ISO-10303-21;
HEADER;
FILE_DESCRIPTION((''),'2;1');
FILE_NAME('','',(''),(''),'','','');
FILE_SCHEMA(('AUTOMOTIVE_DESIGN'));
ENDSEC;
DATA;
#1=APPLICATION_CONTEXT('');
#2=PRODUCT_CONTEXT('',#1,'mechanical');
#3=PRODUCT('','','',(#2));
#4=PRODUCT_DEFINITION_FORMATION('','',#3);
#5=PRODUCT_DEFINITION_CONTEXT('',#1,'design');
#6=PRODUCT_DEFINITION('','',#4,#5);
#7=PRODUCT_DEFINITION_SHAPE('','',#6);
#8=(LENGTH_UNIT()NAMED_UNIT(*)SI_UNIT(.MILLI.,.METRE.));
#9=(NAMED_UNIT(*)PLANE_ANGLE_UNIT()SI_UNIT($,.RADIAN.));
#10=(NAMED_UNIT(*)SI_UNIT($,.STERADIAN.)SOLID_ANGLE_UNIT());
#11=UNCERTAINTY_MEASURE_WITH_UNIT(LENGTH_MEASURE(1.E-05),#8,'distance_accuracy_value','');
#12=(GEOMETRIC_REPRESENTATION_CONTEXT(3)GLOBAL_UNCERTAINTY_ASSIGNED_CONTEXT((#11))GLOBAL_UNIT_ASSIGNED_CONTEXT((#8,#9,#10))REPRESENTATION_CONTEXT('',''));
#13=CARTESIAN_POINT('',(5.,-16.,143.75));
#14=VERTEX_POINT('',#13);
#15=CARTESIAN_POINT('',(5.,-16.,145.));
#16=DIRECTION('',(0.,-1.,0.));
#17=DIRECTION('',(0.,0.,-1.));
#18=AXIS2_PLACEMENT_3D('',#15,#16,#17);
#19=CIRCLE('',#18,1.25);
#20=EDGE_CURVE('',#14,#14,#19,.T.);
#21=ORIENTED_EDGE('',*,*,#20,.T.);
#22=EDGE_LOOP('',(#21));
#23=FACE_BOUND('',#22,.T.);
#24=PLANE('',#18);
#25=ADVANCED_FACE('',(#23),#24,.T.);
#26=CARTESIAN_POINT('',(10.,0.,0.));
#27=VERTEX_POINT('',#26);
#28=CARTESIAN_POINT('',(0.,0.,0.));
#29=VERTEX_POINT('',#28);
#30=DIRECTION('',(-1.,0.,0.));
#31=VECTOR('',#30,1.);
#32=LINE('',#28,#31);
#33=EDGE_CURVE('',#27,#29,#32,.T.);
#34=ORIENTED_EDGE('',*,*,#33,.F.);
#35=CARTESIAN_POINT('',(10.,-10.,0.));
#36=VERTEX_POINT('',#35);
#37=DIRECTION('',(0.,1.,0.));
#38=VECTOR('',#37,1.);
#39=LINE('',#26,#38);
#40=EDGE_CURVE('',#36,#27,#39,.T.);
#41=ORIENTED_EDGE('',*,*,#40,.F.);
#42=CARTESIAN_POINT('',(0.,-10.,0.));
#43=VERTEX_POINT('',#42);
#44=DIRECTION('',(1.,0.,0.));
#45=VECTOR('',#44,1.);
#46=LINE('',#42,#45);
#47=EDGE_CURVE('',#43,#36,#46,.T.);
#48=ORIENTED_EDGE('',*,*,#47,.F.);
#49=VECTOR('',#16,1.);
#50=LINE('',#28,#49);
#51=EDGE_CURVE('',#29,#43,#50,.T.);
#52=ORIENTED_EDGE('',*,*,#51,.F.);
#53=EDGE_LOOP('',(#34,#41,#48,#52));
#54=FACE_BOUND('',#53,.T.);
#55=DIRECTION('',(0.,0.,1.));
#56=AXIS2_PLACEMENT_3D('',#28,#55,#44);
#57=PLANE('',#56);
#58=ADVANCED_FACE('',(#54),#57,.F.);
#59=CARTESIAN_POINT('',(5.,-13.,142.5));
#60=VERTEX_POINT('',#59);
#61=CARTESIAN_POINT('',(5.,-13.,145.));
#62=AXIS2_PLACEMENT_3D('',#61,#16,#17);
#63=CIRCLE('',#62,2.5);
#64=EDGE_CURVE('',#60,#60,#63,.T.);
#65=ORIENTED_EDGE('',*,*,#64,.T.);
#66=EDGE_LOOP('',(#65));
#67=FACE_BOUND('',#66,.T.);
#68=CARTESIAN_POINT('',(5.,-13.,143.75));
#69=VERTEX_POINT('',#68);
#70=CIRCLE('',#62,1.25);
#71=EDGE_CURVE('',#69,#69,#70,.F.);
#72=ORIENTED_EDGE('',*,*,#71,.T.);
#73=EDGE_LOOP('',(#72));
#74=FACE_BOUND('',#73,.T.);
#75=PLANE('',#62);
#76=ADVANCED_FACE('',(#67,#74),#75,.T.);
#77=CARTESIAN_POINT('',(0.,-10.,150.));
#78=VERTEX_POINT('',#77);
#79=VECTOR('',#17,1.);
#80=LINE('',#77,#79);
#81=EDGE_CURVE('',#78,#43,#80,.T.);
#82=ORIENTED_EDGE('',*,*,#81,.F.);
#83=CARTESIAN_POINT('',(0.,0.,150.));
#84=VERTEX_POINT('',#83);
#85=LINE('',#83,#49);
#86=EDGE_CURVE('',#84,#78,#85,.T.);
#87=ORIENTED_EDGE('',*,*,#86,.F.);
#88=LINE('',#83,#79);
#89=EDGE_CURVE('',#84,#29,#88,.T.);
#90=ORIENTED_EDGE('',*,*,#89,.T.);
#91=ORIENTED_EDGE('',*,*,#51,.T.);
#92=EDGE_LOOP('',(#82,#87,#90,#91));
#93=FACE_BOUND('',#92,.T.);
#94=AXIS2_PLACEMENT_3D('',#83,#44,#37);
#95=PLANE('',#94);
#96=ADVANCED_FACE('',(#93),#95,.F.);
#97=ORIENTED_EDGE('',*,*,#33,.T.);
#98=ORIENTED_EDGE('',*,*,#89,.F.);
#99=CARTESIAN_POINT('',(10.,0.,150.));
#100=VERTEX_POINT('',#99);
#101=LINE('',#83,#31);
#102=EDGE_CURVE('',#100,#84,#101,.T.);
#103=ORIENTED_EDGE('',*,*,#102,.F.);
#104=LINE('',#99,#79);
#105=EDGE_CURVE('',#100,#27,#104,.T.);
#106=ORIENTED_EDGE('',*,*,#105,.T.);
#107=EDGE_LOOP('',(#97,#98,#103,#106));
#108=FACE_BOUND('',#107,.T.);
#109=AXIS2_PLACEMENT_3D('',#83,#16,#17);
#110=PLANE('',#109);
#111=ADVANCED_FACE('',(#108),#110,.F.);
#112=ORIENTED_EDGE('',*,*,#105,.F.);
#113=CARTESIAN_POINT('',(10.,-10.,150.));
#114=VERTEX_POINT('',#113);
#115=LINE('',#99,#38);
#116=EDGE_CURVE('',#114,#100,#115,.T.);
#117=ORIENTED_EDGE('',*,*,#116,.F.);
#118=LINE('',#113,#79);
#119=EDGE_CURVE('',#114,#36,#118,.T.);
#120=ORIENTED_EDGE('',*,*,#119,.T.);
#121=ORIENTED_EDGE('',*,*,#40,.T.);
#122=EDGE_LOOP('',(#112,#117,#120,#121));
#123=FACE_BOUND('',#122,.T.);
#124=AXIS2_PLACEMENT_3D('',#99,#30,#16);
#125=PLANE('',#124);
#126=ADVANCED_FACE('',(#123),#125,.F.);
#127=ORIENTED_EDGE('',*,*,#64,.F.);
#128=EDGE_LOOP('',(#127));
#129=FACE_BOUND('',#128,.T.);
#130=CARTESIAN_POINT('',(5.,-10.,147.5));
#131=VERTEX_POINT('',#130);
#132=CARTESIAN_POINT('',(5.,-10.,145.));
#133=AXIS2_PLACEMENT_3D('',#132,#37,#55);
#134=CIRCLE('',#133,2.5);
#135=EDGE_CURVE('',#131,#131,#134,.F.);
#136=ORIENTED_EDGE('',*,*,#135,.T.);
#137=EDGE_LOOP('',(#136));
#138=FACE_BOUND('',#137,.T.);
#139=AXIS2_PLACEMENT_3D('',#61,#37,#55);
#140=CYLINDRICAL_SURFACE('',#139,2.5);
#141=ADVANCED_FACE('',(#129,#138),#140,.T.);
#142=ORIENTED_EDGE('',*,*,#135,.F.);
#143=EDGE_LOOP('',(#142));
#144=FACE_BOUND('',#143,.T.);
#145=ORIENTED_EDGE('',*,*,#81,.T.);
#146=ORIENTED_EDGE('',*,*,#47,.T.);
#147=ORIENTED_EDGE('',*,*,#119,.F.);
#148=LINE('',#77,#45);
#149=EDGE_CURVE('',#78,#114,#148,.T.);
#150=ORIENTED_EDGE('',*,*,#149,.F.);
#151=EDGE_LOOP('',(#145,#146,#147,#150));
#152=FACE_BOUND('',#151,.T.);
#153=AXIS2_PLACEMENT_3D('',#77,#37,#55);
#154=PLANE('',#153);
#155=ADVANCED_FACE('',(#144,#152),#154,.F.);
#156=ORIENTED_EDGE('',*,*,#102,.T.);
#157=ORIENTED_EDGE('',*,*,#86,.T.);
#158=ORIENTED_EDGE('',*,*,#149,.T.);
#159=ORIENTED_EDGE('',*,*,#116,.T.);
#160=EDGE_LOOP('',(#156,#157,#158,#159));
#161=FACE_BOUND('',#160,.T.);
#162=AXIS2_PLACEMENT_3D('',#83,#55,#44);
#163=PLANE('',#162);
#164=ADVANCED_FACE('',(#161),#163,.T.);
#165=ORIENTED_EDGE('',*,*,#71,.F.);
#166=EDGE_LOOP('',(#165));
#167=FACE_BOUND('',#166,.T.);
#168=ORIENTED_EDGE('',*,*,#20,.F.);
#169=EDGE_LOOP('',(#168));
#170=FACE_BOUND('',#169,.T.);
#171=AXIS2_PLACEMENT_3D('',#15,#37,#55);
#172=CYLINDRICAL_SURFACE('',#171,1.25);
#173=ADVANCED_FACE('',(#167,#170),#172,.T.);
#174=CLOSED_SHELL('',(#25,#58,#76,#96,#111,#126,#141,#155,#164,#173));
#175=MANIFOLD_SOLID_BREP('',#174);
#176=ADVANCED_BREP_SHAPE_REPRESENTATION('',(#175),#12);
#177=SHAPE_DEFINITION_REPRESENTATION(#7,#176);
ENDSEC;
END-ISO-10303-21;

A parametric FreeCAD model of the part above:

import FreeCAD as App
import Part
import Sketcher

V = App.Vector
Q = App.Units.Quantity

doc = App.newDocument("Part")
body = doc.addObject("PartDesign::Body", "Body")

# Sketch on XY plane
sketch1 = body.newObject("Sketcher::SketchObject", "Sketch")
sketch1.AttachmentSupport = (doc.getObject("XY_Plane"), [""])
sketch1.MapMode = "FlatFace"
sketch1.addGeometry(Part.LineSegment(V(0, 0, 0), V(0, -10, 0)), False)
sketch1.addGeometry(Part.LineSegment(V(0, -10, 0), V(10, -10, 0)), False)
sketch1.addGeometry(Part.LineSegment(V(10, -10, 0), V(10, 0, 0)), False)
sketch1.addGeometry(Part.LineSegment(V(10, 0, 0), V(0, 0, 0)), False)
sketch1.addConstraint(Sketcher.Constraint("Coincident", 0, 2, 1, 1))
sketch1.addConstraint(Sketcher.Constraint("Coincident", 1, 2, 2, 1))
sketch1.addConstraint(Sketcher.Constraint("Coincident", 2, 2, 3, 1))
sketch1.addConstraint(Sketcher.Constraint("Coincident", 3, 2, 0, 1))
sketch1.addConstraint(Sketcher.Constraint("Vertical", 0))
sketch1.addConstraint(Sketcher.Constraint("Horizontal", 1))
sketch1.addConstraint(Sketcher.Constraint("Vertical", 2))
sketch1.addConstraint(Sketcher.Constraint("Horizontal", 3))
sketch1.addConstraint(Sketcher.Constraint("Coincident", 3, 2, -1, 1))
sketch1.addConstraint(Sketcher.Constraint("Equal", 3, 0))
sketch1.addConstraint(Sketcher.Constraint("DistanceX", 1, 1, 1, 2, Q("10 mm")))
pad1 = body.newObject("PartDesign::Pad", "Pad")
pad1.Profile = sketch1
pad1.Length = 150

# Sketch on XZ plane
sketch2 = body.newObject("Sketcher::SketchObject", "Sketch001")
sketch2.AttachmentSupport = (doc.getObject("XZ_Plane"), [""])
sketch2.MapMode = "FlatFace"
sketch2.AttachmentOffset = App.Placement(V(0, 0, 10), App.Rotation())
sketch2.addGeometry(Part.Circle(V(5, 145, 0), V(0, 0, 1), 2.5), False)
sketch2.addConstraint(Sketcher.Constraint("Diameter", 0, Q("5 mm")))
sketch2.addConstraint(Sketcher.Constraint("DistanceX", -1, 1, 0, 3, Q("5 mm")))
sketch2.addConstraint(Sketcher.Constraint("DistanceY", -1, 1, 0, 3, Q("145 mm")))
pad2 = body.newObject("PartDesign::Pad", "Pad001")
pad2.Profile = sketch2
pad2.Length = 3

# Sketch on XZ plane
sketch3 = body.newObject("Sketcher::SketchObject", "Sketch002")
sketch3.AttachmentSupport = (doc.getObject("XZ_Plane"), [""])
sketch3.MapMode = "FlatFace"
sketch3.AttachmentOffset = App.Placement(V(0, 0, 10), App.Rotation())
sketch3.addGeometry(Part.Circle(V(5, 145, 0), V(0, 0, 1), 1.2), False)
sketch3.addConstraint(Sketcher.Constraint("Diameter", 0, Q("2.5 mm")))
sketch3.addConstraint(Sketcher.Constraint("DistanceX", -1, 1, 0, 3, Q("5 mm")))
sketch3.addConstraint(Sketcher.Constraint("DistanceY", -1, 1, 0, 3, Q("145 mm")))
pad3 = body.newObject("PartDesign::Pad", "Pad002")
pad3.Profile = sketch3
pad3.Length = 6

doc.recompute()
